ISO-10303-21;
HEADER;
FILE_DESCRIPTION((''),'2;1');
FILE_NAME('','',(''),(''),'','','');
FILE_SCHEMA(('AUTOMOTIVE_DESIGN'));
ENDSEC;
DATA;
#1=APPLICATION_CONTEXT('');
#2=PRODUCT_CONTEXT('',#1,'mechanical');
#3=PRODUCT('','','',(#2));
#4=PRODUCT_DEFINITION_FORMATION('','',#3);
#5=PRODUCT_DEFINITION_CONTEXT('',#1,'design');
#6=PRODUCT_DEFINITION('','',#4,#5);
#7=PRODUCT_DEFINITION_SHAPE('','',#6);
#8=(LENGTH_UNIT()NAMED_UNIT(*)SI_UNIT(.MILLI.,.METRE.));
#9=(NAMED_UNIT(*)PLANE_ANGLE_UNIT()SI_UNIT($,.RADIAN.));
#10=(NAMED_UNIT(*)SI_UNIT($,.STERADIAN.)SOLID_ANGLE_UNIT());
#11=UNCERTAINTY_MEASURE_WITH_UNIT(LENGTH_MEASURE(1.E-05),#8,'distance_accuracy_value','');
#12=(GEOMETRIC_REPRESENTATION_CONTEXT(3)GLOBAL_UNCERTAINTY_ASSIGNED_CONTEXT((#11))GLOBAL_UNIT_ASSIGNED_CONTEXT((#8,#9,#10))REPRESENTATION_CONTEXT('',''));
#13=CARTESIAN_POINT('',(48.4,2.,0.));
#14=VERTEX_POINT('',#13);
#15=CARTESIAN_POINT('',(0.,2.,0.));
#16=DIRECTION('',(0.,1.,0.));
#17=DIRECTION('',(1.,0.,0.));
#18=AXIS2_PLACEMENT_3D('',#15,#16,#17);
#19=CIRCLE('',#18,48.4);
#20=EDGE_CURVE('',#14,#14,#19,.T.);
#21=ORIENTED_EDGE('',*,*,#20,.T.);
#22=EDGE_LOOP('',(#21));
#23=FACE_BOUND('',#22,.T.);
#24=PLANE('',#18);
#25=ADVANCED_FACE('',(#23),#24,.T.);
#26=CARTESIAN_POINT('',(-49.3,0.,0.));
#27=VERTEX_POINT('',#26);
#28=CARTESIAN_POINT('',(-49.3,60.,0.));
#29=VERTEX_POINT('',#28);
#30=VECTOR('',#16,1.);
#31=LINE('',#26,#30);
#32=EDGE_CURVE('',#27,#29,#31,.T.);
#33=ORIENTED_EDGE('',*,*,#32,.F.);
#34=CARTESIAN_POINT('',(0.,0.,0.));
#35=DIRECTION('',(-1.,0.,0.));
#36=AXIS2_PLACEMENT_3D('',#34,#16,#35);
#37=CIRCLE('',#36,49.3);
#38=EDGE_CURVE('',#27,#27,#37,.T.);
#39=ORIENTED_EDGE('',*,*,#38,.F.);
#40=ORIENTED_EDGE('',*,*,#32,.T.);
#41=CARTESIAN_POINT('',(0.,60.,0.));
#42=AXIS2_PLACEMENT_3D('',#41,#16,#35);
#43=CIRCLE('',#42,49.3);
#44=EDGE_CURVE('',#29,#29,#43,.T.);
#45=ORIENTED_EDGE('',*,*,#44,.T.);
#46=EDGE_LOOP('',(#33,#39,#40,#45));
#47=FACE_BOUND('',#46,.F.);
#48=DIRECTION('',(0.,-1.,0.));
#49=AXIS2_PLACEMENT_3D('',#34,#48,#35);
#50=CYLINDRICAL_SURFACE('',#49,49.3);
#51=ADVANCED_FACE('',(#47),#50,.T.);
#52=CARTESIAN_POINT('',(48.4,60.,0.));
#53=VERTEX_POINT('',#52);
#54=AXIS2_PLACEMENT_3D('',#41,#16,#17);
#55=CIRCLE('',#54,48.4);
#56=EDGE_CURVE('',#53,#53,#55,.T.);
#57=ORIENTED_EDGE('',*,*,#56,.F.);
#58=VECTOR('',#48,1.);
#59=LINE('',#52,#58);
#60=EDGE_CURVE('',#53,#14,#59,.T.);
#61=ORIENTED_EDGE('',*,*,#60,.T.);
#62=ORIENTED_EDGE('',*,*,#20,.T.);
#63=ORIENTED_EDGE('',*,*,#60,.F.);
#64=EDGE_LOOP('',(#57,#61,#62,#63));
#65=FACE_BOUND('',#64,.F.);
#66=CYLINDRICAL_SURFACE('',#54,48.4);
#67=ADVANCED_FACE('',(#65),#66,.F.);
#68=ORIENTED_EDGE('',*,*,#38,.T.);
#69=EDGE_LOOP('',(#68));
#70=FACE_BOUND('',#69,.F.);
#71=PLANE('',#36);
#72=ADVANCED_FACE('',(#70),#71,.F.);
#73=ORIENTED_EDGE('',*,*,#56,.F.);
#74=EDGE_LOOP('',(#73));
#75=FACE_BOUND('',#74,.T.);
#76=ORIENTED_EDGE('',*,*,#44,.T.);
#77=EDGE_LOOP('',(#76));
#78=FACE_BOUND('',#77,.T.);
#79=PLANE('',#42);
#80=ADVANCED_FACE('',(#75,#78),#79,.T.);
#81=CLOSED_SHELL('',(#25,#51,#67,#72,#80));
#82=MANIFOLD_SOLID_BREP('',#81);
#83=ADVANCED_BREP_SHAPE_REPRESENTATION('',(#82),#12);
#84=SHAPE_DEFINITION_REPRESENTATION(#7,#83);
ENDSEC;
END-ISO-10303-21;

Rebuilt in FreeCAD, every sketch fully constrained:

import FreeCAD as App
import Part
import Sketcher

doc = App.newDocument("Part")
params = doc.addObject("Spreadsheet::Sheet", "Params")
for row, (alias, value) in enumerate([
    ("sketch1_diameter", "98.6 mm"),
    ("pad1_length", "60 mm"),
    ("sketch2_diameter", "96.8 mm"),
    ("pocket1_length", "58 mm"),
], start=1):
    params.set(f"A{row}", alias)
    params.set(f"B{row}", "=" + value)
    params.setAlias(f"B{row}", alias)

body = doc.addObject("PartDesign::Body", "Body")

# Sketch on XZ plane
sketch1 = doc.addObject("Sketcher::SketchObject", "Sketch")
body.addObject(sketch1)
sketch1.AttachmentSupport = (doc.XZ_Plane, [""])
sketch1.MapMode = "FlatFace"
sketch1.addGeometry(Part.Circle(App.Vector(0, 0, 0), App.Vector(0, 0, 1), 49), False)
sketch1.addConstraint(Sketcher.Constraint("Coincident", 0, 3, -1, 1))
sketch1.addConstraint(Sketcher.Constraint("Diameter", 0, 98.6))
sketch1.setExpression("Constraints[1]", "Params.sketch1_diameter")
pad1 = doc.addObject("PartDesign::Pad", "Pad")
body.addObject(pad1)
pad1.Profile = sketch1
pad1.setExpression("Length", "Params.pad1_length")
pad1.Reversed = True

# Sketch on XZ plane
sketch2 = doc.addObject("Sketcher::SketchObject", "Sketch001")
body.addObject(sketch2)
sketch2.AttachmentSupport = (doc.XZ_Plane, [""])
sketch2.MapMode = "FlatFace"
sketch2.AttachmentOffset = App.Placement(App.Vector(0, 0, -60), App.Rotation())
sketch2.addGeometry(Part.Circle(App.Vector(0, 0, 0), App.Vector(0, 0, 1), 48), False)
sketch2.addConstraint(Sketcher.Constraint("Coincident", 0, 3, -1, 1))
sketch2.addConstraint(Sketcher.Constraint("Diameter", 0, 96.8))
sketch2.setExpression("Constraints[1]", "Params.sketch2_diameter")
pocket1 = doc.addObject("PartDesign::Pocket", "Pocket")
body.addObject(pocket1)
pocket1.Profile = sketch2
pocket1.setExpression("Length", "Params.pocket1_length")
pocket1.Reversed = True

doc.recompute()
